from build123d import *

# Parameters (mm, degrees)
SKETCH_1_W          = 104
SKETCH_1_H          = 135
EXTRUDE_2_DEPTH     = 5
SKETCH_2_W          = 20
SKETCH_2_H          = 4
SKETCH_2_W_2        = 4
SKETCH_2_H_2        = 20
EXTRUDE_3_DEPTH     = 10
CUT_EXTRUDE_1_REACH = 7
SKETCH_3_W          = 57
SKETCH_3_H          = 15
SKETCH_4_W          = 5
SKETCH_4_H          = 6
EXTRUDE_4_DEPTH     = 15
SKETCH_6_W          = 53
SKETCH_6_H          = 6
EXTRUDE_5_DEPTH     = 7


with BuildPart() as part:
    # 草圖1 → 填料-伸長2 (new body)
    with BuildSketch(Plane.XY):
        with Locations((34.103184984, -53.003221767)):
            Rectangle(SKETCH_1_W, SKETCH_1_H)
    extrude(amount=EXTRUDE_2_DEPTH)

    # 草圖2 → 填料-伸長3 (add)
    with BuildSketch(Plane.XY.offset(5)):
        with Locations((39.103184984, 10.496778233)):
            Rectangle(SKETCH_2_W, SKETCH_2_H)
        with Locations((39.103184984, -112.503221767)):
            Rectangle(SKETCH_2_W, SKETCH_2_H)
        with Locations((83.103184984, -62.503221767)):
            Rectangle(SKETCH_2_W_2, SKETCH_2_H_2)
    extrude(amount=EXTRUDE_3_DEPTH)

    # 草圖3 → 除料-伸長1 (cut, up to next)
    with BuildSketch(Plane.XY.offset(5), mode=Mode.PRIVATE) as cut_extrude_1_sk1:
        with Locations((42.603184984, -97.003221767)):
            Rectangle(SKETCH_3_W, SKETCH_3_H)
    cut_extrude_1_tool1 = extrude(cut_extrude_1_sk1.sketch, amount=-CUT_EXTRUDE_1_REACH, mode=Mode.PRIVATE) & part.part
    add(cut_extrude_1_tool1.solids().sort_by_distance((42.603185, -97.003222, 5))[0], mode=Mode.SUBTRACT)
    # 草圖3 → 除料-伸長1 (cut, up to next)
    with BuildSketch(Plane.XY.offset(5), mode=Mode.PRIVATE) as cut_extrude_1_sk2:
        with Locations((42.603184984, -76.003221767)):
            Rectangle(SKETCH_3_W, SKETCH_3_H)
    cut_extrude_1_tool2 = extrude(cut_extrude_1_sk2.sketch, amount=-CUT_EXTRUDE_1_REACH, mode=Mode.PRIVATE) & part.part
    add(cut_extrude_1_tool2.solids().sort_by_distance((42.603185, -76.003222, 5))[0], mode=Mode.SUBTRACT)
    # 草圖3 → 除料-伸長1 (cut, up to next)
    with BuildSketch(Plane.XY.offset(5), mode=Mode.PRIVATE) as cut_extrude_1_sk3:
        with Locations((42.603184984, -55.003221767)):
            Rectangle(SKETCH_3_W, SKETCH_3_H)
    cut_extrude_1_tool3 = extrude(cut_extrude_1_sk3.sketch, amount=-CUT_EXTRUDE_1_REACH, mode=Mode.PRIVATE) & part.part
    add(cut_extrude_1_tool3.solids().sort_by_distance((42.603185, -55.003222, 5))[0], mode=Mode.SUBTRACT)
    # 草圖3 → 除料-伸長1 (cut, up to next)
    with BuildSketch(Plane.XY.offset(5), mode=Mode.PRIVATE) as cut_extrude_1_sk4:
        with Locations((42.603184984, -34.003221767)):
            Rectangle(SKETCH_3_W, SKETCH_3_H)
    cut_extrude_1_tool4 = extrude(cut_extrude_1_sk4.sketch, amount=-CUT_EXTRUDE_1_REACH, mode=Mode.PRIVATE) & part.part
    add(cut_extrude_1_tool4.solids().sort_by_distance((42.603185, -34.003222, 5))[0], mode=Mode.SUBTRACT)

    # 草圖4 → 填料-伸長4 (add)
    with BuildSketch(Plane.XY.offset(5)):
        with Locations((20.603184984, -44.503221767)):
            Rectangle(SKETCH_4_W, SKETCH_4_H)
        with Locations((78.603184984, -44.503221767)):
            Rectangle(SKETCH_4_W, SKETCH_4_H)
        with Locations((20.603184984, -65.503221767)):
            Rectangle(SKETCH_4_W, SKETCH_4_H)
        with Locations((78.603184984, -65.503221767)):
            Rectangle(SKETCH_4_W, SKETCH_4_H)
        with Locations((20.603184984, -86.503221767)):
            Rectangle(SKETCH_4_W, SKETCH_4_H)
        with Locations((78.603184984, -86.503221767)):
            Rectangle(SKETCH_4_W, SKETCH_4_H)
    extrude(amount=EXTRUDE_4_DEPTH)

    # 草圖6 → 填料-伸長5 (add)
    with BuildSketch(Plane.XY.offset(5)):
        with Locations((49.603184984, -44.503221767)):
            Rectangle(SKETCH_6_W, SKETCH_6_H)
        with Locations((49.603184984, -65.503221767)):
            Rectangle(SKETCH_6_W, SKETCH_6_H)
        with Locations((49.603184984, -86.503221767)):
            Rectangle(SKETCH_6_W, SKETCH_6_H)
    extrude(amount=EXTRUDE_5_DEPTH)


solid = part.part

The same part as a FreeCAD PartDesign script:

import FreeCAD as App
import Part
import Sketcher

V = App.Vector


def add_polygon(sketch, points):
    """Adds a closed chain of lines whose ends are joined by coincident constraints."""
    first, n = sketch.GeometryCount, len(points)
    for a, b in zip(points, points[1:] + points[:1]):
        sketch.addGeometry(Part.LineSegment(App.Vector(*a, 0), App.Vector(*b, 0)), False)
    for i in range(n):
        sketch.addConstraint(Sketcher.Constraint("Coincident", first + i, 2, first + (i + 1) % n, 1))

doc = App.newDocument("Part")
body = doc.addObject("PartDesign::Body", "Body")

sketch1 = doc.addObject("Sketcher::SketchObject", "Sketch")
body.addObject(sketch1)
sketch1.AttachmentSupport = (doc.XY_Plane, [""])
sketch1.MapMode = "FlatFace"
add_polygon(sketch1, [(-18, 14), (-18, -121), (86, -121), (86, 14)])
sketch1.addConstraint(Sketcher.Constraint("Vertical", 0))
sketch1.addConstraint(Sketcher.Constraint("Horizontal", 1))
sketch1.addConstraint(Sketcher.Constraint("Vertical", 2))
sketch1.addConstraint(Sketcher.Constraint("Horizontal", 3))
sketch1.addConstraint(Sketcher.Constraint("DistanceX", 1, 1, 1, 2, 104.0))
sketch1.addConstraint(Sketcher.Constraint("DistanceY", 0, 2, 0, 1, 135.0))
sketch1.addConstraint(Sketcher.Constraint("DistanceY", 0, 2, -1, 1, 120.503222))
sketch1.addConstraint(Sketcher.Constraint("DistanceX", 0, 2, -1, 1, 17.896815))
pad1 = doc.addObject("PartDesign::Pad", "Pad")
body.addObject(pad1)
pad1.Profile = sketch1
pad1.Length = 5

sketch2 = doc.addObject("Sketcher::SketchObject", "Sketch001")
body.addObject(sketch2)
sketch2.AttachmentSupport = (doc.XY_Plane, [""])
sketch2.MapMode = "FlatFace"
sketch2.AttachmentOffset = App.Placement(V(0, 0, 5), App.Rotation())
add_polygon(sketch2, [(29.1, 12.5), (29.1, 8.5), (49.1, 8.5), (49.1, 12.5)])
add_polygon(sketch2, [(29.1, -110.5), (29.1, -114.5), (49.1, -114.5), (49.1, -110.5)])
add_polygon(sketch2, [(81.1, -52.5), (81.1, -72.5), (85.1, -72.5), (85.1, -52.5)])
sketch2.addConstraint(Sketcher.Constraint("Vertical", 0))
sketch2.addConstraint(Sketcher.Constraint("Horizontal", 1))
sketch2.addConstraint(Sketcher.Constraint("Vertical", 2))
sketch2.addConstraint(Sketcher.Constraint("Horizontal", 3))
sketch2.addConstraint(Sketcher.Constraint("Vertical", 4))
sketch2.addConstraint(Sketcher.Constraint("Horizontal", 5))
sketch2.addConstraint(Sketcher.Constraint("Vertical", 6))
sketch2.addConstraint(Sketcher.Constraint("Horizontal", 7))
sketch2.addConstraint(Sketcher.Constraint("Vertical", 8))
sketch2.addConstraint(Sketcher.Constraint("Horizontal", 9))
sketch2.addConstraint(Sketcher.Constraint("Vertical", 10))
sketch2.addConstraint(Sketcher.Constraint("Horizontal", 11))
sketch2.addConstraint(Sketcher.Constraint("Vertical", 3, 2, 4, 2))
sketch2.addConstraint(Sketcher.Constraint("Vertical", 2, 2, 5, 2))
sketch2.addConstraint(Sketcher.Constraint("Equal", 11, 0))
sketch2.addConstraint(Sketcher.Constraint("Equal", 2, 4))
sketch2.addConstraint(Sketcher.Constraint("Equal", 7, 8))
sketch2.addConstraint(Sketcher.Constraint("DistanceX", 1, 1, 1, 2, 20.0))
sketch2.addConstraint(Sketcher.Constraint("DistanceX", 9, 1, 9, 2, 4.0))
sketch2.addConstraint(Sketcher.Constraint("DistanceY", 4, 2, 0, 2, 123.0))
sketch2.addConstraint(Sketcher.Constraint("DistanceX", 6, 2, 8, 2, 32.0))
sketch2.addConstraint(Sketcher.Constraint("DistanceY", 6, 2, 8, 2, 38.0))
sketch2.addConstraint(Sketcher.Constraint("DistanceY", -1, 1, 0, 2, 8.496778))
sketch2.addConstraint(Sketcher.Constraint("DistanceX", -1, 1, 0, 2, 29.103185))
pad2 = doc.addObject("PartDesign::Pad", "Pad001")
body.addObject(pad2)
pad2.Profile = sketch2
pad2.Length = 10

sketch3 = doc.addObject("Sketcher::SketchObject", "Sketch002")
body.addObject(sketch3)
sketch3.AttachmentSupport = (doc.XY_Plane, [""])
sketch3.MapMode = "FlatFace"
sketch3.AttachmentOffset = App.Placement(V(0, 0, 5), App.Rotation())
add_polygon(sketch3, [(14, -90), (14, -105), (71, -105), (71, -90)])
sketch3.addConstraint(Sketcher.Constraint("Vertical", 0))
sketch3.addConstraint(Sketcher.Constraint("Horizontal", 1))
sketch3.addConstraint(Sketcher.Constraint("Vertical", 2))
sketch3.addConstraint(Sketcher.Constraint("Horizontal", 3))
sketch3.addConstraint(Sketcher.Constraint("DistanceX", 1, 1, 1, 2, 57.0))
sketch3.addConstraint(Sketcher.Constraint("DistanceY", 0, 2, 0, 1, 15.0))
sketch3.addConstraint(Sketcher.Constraint("DistanceY", 0, 2, -1, 1, 104.503222))
sketch3.addConstraint(Sketcher.Constraint("DistanceX", -1, 1, 0, 2, 14.103185))
pocket1 = doc.addObject("PartDesign::Pocket", "Pocket")
body.addObject(pocket1)
pocket1.Profile = sketch3
pocket1.Type = "UpToFirst"

sketch4 = doc.addObject("Sketcher::SketchObject", "Sketch003")
body.addObject(sketch4)
sketch4.AttachmentSupport = (doc.XY_Plane, [""])
sketch4.MapMode = "FlatFace"
sketch4.AttachmentOffset = App.Placement(V(0, 0, 5), App.Rotation())
add_polygon(sketch4, [(14, -69), (14, -84), (71, -84), (71, -69)])
sketch4.addConstraint(Sketcher.Constraint("Vertical", 0))
sketch4.addConstraint(Sketcher.Constraint("Horizontal", 1))
sketch4.addConstraint(Sketcher.Constraint("Vertical", 2))
sketch4.addConstraint(Sketcher.Constraint("Horizontal", 3))
sketch4.addConstraint(Sketcher.Constraint("DistanceX", 1, 1, 1, 2, 57.0))
sketch4.addConstraint(Sketcher.Constraint("DistanceY", 0, 2, 0, 1, 15.0))
sketch4.addConstraint(Sketcher.Constraint("DistanceY", 0, 2, -1, 1, 83.503222))
sketch4.addConstraint(Sketcher.Constraint("DistanceX", -1, 1, 0, 2, 14.103185))
pocket2 = doc.addObject("PartDesign::Pocket", "Pocket001")
body.addObject(pocket2)
pocket2.Profile = sketch4
pocket2.Type = "UpToFirst"

sketch5 = doc.addObject("Sketcher::SketchObject", "Sketch004")
body.addObject(sketch5)
sketch5.AttachmentSupport = (doc.XY_Plane, [""])
sketch5.MapMode = "FlatFace"
sketch5.AttachmentOffset = App.Placement(V(0, 0, 5), App.Rotation())
add_polygon(sketch5, [(14, -48), (14, -63), (71, -63), (71, -48)])
sketch5.addConstraint(Sketcher.Constraint("Vertical", 0))
sketch5.addConstraint(Sketcher.Constraint("Horizontal", 1))
sketch5.addConstraint(Sketcher.Constraint("Vertical", 2))
sketch5.addConstraint(Sketcher.Constraint("Horizontal", 3))
sketch5.addConstraint(Sketcher.Constraint("DistanceX", 1, 1, 1, 2, 57.0))
sketch5.addConstraint(Sketcher.Constraint("DistanceY", 0, 2, 0, 1, 15.0))
sketch5.addConstraint(Sketcher.Constraint("DistanceY", 0, 2, -1, 1, 62.503222))
sketch5.addConstraint(Sketcher.Constraint("DistanceX", -1, 1, 0, 2, 14.103185))
pocket3 = doc.addObject("PartDesign::Pocket", "Pocket002")
body.addObject(pocket3)
pocket3.Profile = sketch5
pocket3.Type = "UpToFirst"

sketch6 = doc.addObject("Sketcher::SketchObject", "Sketch005")
body.addObject(sketch6)
sketch6.AttachmentSupport = (doc.XY_Plane, [""])
sketch6.MapMode = "FlatFace"
sketch6.AttachmentOffset = App.Placement(V(0, 0, 5), App.Rotation())
add_polygon(sketch6, [(14, -27), (14, -42), (71, -42), (71, -27)])
sketch6.addConstraint(Sketcher.Constraint("Vertical", 0))
sketch6.addConstraint(Sketcher.Constraint("Horizontal", 1))
sketch6.addConstraint(Sketcher.Constraint("Vertical", 2))
sketch6.addConstraint(Sketcher.Constraint("Horizontal", 3))
sketch6.addConstraint(Sketcher.Constraint("DistanceX", 1, 1, 1, 2, 57.0))
sketch6.addConstraint(Sketcher.Constraint("DistanceY", 0, 2, 0, 1, 15.0))
sketch6.addConstraint(Sketcher.Constraint("DistanceY", 0, 2, -1, 1, 41.503222))
sketch6.addConstraint(Sketcher.Constraint("DistanceX", -1, 1, 0, 2, 14.103185))
pocket4 = doc.addObject("PartDesign::Pocket", "Pocket003")
body.addObject(pocket4)
pocket4.Profile = sketch6
pocket4.Type = "UpToFirst"

sketch7 = doc.addObject("Sketcher::SketchObject", "Sketch006")
body.addObject(sketch7)
sketch7.AttachmentSupport = (doc.XY_Plane, [""])
sketch7.MapMode = "FlatFace"
sketch7.AttachmentOffset = App.Placement(V(0, 0, 5), App.Rotation())
add_polygon(sketch7, [(18, -42), (18, -48), (23, -48), (23, -42)])
add_polygon(sketch7, [(76, -42), (76, -48), (81, -48), (81, -42)])
add_polygon(sketch7, [(18, -63), (18, -69), (23, -69), (23, -63)])
add_polygon(sketch7, [(76, -63), (76, -69), (81, -69), (81, -63)])
add_polygon(sketch7, [(18, -84), (18, -90), (23, -90), (23, -84)])
add_polygon(sketch7, [(76, -84), (76, -90), (81, -90), (81, -84)])
sketch7.addConstraint(Sketcher.Constraint("Vertical", 0))
sketch7.addConstraint(Sketcher.Constraint("Horizontal", 1))
sketch7.addConstraint(Sketcher.Constraint("Vertical", 2))
sketch7.addConstraint(Sketcher.Constraint("Horizontal", 3))
sketch7.addConstraint(Sketcher.Constraint("Vertical", 4))
sketch7.addConstraint(Sketcher.Constraint("Horizontal", 5))
sketch7.addConstraint(Sketcher.Constraint("Vertical", 6))
sketch7.addConstraint(Sketcher.Constraint("Horizontal", 7))
sketch7.addConstraint(Sketcher.Constraint("Vertical", 8))
sketch7.addConstraint(Sketcher.Constraint("Horizontal", 9))
sketch7.addConstraint(Sketcher.Constraint("Vertical", 10))
sketch7.addConstraint(Sketcher.Constraint("Horizontal", 11))
sketch7.addConstraint(Sketcher.Constraint("Vertical", 12))
sketch7.addConstraint(Sketcher.Constraint("Horizontal", 13))
sketch7.addConstraint(Sketcher.Constraint("Vertical", 14))
sketch7.addConstraint(Sketcher.Constraint("Horizontal", 15))
sketch7.addConstraint(Sketcher.Constraint("Vertical", 16))
sketch7.addConstraint(Sketcher.Constraint("Horizontal", 17))
sketch7.addConstraint(Sketcher.Constraint("Vertical", 18))
sketch7.addConstraint(Sketcher.Constraint("Horizontal", 19))
sketch7.addConstraint(Sketcher.Constraint("Vertical", 20))
sketch7.addConstraint(Sketcher.Constraint("Horizontal", 21))
sketch7.addConstraint(Sketcher.Constraint("Vertical", 22))
sketch7.addConstraint(Sketcher.Constraint("Horizontal", 23))
sketch7.addConstraint(Sketcher.Constraint("Horizontal", 1, 2, 4, 2))
sketch7.addConstraint(Sketcher.Constraint("Horizontal", 3, 2, 6, 2))
sketch7.addConstraint(Sketcher.Constraint("Horizontal", 9, 2, 12, 2))
sketch7.addConstraint(Sketcher.Constraint("Horizontal", 11, 2, 14, 2))
sketch7.addConstraint(Sketcher.Constraint("Horizontal", 17, 2, 20, 2))
sketch7.addConstraint(Sketcher.Constraint("Horizontal", 19, 2, 22, 2))
sketch7.addConstraint(Sketcher.Constraint("Vertical", 3, 2, 8, 2))
sketch7.addConstraint(Sketcher.Constraint("Vertical", 2, 2, 9, 2))
sketch7.addConstraint(Sketcher.Constraint("Vertical", 7, 2, 12, 2))
sketch7.addConstraint(Sketcher.Constraint("Vertical", 6, 2, 13, 2))
sketch7.addConstraint(Sketcher.Constraint("Vertical", 11, 2, 16, 2))
sketch7.addConstraint(Sketcher.Constraint("Vertical", 10, 2, 17, 2))
sketch7.addConstraint(Sketcher.Constraint("Vertical", 15, 2, 20, 2))
sketch7.addConstraint(Sketcher.Constraint("Vertical", 14, 2, 21, 2))
sketch7.addConstraint(Sketcher.Constraint("Equal", 3, 5))
sketch7.addConstraint(Sketcher.Constraint("Equal", 6, 8))
sketch7.addConstraint(Sketcher.Constraint("Equal", 14, 16))
sketch7.addConstraint(Sketcher.Constraint("DistanceX", 1, 1, 1, 2, 5.0))
sketch7.addConstraint(Sketcher.Constraint("DistanceY", 0, 2, 0, 1, 6.0))
sketch7.addConstraint(Sketcher.Constraint("DistanceX", 1, 2, 4, 2, 53.0))
sketch7.addConstraint(Sketcher.Constraint("DistanceY", 8, 2, 0, 2, 21.0))
sketch7.addConstraint(Sketcher.Constraint("DistanceY", 16, 2, 8, 2, 21.0))
sketch7.addConstraint(Sketcher.Constraint("DistanceY", 0, 2, -1, 1, 47.503222))
sketch7.addConstraint(Sketcher.Constraint("DistanceX", -1, 1, 0, 2, 18.103185))
pad3 = doc.addObject("PartDesign::Pad", "Pad002")
body.addObject(pad3)
pad3.Profile = sketch7
pad3.Length = 15

sketch8 = doc.addObject("Sketcher::SketchObject", "Sketch007")
body.addObject(sketch8)
sketch8.AttachmentSupport = (doc.XY_Plane, [""])
sketch8.MapMode = "FlatFace"
sketch8.AttachmentOffset = App.Placement(V(0, 0, 5), App.Rotation())
add_polygon(sketch8, [(23, -42), (23, -48), (76, -48), (76, -42)])
add_polygon(sketch8, [(23, -63), (23, -69), (76, -69), (76, -63)])
add_polygon(sketch8, [(23, -84), (23, -90), (76, -90), (76, -84)])
sketch8.addConstraint(Sketcher.Constraint("Vertical", 0))
sketch8.addConstraint(Sketcher.Constraint("Horizontal", 1))
sketch8.addConstraint(Sketcher.Constraint("Vertical", 2))
sketch8.addConstraint(Sketcher.Constraint("Horizontal", 3))
sketch8.addConstraint(Sketcher.Constraint("Vertical", 4))
sketch8.addConstraint(Sketcher.Constraint("Horizontal", 5))
sketch8.addConstraint(Sketcher.Constraint("Vertical", 6))
sketch8.addConstraint(Sketcher.Constraint("Horizontal", 7))
sketch8.addConstraint(Sketcher.Constraint("Vertical", 8))
sketch8.addConstraint(Sketcher.Constraint("Horizontal", 9))
sketch8.addConstraint(Sketcher.Constraint("Vertical", 10))
sketch8.addConstraint(Sketcher.Constraint("Horizontal", 11))
sketch8.addConstraint(Sketcher.Constraint("Vertical", 3, 2, 4, 2))
sketch8.addConstraint(Sketcher.Constraint("Vertical", 2, 2, 5, 2))
sketch8.addConstraint(Sketcher.Constraint("Vertical", 7, 2, 8, 2))
sketch8.addConstraint(Sketcher.Constraint("Vertical", 6, 2, 9, 2))
sketch8.addConstraint(Sketcher.Constraint("Equal", 2, 4))
sketch8.addConstraint(Sketcher.Constraint("Equal", 6, 8))
sketch8.addConstraint(Sketcher.Constraint("DistanceX", 1, 1, 1, 2, 53.0))
sketch8.addConstraint(Sketcher.Constraint("DistanceY", 0, 2, 0, 1, 6.0))
sketch8.addConstraint(Sketcher.Constraint("DistanceY", 4, 2, 0, 2, 21.0))
sketch8.addConstraint(Sketcher.Constraint("DistanceY", 8, 2, 4, 2, 21.0))
sketch8.addConstraint(Sketcher.Constraint("DistanceY", 0, 2, -1, 1, 47.503222))
sketch8.addConstraint(Sketcher.Constraint("DistanceX", -1, 1, 0, 2, 23.103185))
pad4 = doc.addObject("PartDesign::Pad", "Pad003")
body.addObject(pad4)
pad4.Profile = sketch8
pad4.Length = 7

doc.recompute()
